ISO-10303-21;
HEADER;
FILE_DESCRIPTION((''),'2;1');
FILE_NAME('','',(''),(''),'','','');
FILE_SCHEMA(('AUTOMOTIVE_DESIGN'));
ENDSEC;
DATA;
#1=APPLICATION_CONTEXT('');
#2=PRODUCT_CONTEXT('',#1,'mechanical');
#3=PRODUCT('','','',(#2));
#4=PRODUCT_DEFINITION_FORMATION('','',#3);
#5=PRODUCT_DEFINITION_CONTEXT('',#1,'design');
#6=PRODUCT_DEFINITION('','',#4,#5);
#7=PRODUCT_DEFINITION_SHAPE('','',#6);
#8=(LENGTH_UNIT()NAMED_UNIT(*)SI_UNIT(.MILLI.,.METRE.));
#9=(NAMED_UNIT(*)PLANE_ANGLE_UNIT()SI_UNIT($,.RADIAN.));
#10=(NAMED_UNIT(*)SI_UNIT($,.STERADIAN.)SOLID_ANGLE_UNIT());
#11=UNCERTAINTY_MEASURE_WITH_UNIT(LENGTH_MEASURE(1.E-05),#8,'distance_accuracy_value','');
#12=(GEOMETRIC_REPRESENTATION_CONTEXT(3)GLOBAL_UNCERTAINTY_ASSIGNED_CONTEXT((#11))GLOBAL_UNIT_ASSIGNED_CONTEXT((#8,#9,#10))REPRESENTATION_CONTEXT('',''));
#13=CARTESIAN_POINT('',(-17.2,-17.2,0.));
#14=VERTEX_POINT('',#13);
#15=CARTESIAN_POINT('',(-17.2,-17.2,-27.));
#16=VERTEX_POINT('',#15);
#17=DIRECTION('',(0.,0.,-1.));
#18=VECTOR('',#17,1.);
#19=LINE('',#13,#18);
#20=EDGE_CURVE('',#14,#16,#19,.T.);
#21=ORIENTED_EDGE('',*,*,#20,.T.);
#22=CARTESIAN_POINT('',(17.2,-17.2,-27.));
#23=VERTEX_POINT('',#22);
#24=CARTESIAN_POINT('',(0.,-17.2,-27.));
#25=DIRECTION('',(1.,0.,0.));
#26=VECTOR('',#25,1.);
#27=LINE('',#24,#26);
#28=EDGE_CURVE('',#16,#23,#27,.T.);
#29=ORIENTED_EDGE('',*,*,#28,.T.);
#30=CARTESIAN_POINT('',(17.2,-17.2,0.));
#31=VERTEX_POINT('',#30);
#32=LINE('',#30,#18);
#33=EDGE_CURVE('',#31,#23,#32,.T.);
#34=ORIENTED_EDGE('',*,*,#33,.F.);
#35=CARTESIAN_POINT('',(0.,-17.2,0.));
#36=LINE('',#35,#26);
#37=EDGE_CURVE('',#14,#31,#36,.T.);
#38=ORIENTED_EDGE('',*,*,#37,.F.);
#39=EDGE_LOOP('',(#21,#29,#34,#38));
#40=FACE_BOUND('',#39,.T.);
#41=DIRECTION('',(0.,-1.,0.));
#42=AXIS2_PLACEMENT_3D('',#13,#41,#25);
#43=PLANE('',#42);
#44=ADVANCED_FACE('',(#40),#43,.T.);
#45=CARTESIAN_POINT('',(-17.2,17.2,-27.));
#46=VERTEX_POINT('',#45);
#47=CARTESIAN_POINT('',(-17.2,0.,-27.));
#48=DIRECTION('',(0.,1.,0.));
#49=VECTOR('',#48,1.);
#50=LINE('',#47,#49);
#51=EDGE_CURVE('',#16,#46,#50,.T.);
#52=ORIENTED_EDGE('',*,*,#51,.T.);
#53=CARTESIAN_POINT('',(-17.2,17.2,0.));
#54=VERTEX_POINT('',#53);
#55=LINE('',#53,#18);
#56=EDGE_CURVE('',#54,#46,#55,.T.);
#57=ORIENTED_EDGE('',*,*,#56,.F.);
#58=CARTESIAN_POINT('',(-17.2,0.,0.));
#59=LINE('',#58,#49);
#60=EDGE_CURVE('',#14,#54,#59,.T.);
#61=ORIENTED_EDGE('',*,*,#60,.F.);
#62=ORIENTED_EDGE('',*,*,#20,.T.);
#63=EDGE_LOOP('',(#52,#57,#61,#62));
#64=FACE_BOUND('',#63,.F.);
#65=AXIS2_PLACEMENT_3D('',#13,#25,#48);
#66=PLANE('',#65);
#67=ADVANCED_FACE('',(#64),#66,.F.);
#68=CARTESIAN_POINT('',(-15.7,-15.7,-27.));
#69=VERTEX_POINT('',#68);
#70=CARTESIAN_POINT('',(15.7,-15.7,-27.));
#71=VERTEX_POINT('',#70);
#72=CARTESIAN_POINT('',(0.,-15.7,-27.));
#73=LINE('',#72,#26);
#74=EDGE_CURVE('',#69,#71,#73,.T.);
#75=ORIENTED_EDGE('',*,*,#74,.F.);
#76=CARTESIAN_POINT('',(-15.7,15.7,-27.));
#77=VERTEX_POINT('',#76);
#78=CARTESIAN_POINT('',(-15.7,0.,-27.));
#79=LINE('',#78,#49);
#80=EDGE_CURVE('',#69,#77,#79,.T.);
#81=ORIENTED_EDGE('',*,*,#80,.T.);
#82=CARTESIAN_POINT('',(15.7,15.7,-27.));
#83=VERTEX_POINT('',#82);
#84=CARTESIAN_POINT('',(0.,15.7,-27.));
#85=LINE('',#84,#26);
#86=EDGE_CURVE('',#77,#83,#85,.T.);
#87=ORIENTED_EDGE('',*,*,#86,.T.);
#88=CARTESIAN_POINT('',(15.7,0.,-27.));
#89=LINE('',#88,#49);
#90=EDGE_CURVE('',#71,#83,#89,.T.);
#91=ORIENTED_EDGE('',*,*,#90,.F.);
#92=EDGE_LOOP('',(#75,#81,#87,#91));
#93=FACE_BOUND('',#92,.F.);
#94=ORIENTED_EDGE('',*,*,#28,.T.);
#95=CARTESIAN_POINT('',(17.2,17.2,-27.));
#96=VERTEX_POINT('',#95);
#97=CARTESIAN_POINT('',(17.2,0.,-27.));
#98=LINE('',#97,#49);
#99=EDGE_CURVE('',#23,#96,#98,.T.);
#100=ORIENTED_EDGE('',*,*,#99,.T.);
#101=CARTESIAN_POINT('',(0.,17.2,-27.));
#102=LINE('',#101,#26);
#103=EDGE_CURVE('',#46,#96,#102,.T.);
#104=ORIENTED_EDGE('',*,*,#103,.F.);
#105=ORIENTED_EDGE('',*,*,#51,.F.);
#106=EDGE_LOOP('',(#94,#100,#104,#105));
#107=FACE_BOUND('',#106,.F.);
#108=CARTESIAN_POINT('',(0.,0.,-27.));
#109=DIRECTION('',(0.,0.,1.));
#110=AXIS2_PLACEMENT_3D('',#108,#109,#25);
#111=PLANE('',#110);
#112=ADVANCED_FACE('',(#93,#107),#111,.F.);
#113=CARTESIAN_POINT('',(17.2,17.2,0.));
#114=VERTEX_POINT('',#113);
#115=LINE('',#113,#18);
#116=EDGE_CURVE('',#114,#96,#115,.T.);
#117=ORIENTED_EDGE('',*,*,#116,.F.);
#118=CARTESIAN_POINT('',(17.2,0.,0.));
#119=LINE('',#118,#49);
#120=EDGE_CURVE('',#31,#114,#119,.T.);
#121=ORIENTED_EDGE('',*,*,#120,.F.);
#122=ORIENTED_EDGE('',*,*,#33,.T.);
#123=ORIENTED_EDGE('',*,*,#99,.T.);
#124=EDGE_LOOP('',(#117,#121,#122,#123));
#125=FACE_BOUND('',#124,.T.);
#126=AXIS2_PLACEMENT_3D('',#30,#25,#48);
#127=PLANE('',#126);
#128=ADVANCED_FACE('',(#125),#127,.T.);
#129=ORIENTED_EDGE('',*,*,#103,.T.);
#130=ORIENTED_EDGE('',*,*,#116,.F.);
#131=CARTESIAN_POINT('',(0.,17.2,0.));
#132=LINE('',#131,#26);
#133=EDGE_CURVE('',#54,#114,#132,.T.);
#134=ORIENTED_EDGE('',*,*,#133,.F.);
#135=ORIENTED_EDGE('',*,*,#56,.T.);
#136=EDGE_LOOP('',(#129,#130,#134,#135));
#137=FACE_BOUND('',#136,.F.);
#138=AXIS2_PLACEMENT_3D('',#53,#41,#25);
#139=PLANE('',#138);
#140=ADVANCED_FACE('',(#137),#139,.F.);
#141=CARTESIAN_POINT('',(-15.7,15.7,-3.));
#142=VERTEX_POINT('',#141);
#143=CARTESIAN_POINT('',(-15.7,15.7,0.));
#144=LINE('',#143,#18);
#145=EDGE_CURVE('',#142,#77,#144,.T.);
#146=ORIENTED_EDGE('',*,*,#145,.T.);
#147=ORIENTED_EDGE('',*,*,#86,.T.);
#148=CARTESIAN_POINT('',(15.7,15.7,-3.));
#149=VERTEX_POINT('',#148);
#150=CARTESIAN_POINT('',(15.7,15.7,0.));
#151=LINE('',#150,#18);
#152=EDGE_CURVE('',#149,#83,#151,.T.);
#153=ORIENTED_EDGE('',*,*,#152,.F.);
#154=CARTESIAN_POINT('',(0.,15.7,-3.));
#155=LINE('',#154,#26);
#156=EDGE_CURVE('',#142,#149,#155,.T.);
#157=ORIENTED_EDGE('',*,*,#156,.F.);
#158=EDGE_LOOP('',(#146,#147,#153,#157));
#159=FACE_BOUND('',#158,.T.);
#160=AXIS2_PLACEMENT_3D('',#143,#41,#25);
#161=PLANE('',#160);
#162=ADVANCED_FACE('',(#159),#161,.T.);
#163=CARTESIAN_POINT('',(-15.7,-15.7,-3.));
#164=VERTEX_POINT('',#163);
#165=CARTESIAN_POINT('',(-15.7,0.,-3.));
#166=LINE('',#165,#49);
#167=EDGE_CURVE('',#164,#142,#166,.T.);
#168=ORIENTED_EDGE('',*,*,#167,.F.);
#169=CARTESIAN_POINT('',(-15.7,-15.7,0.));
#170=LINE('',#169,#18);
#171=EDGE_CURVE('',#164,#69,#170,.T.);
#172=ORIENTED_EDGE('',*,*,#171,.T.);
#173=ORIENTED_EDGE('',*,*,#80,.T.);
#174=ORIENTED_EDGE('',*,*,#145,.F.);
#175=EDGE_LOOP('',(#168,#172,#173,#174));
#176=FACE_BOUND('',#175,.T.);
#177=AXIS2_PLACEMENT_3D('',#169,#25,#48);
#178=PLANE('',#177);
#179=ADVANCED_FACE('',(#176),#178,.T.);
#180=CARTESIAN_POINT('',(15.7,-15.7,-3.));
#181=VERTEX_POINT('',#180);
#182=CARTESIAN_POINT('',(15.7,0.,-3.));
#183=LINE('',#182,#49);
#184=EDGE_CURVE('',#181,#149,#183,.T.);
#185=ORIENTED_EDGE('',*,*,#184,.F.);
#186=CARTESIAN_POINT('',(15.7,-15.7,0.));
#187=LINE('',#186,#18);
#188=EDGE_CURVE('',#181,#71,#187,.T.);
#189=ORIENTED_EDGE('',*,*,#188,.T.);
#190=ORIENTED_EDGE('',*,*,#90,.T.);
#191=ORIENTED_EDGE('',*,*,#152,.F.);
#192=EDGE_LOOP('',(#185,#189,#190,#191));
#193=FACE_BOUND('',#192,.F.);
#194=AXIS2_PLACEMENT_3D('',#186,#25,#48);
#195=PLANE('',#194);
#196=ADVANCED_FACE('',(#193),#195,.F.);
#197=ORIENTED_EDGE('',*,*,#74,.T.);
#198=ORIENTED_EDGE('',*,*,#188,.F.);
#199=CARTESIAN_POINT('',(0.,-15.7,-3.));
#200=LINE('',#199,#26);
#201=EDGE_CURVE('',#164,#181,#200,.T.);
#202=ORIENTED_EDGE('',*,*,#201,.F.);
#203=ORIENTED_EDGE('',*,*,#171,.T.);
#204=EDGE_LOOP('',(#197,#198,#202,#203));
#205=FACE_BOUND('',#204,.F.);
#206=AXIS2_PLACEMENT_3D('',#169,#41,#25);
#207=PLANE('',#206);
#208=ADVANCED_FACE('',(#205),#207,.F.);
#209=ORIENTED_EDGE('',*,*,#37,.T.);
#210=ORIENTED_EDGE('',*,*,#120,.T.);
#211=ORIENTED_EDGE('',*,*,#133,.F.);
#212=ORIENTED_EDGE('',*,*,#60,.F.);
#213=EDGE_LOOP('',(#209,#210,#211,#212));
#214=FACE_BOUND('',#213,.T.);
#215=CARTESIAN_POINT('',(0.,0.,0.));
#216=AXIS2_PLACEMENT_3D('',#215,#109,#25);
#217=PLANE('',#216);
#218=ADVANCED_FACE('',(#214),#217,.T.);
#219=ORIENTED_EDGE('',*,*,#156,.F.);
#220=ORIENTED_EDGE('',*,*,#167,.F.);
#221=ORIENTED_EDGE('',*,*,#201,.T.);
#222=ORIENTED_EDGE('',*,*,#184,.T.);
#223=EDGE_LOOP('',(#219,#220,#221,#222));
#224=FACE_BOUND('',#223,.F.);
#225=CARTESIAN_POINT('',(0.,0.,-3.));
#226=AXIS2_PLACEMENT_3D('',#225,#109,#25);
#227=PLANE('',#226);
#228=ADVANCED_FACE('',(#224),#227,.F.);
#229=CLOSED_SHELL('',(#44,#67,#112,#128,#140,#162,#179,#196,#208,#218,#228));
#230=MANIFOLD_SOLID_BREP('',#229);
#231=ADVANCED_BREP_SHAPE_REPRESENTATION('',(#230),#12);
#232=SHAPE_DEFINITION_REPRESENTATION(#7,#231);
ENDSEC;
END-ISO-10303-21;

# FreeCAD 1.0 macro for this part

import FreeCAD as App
import Part
import Sketcher

V = App.Vector
Q = App.Units.Quantity


def add_polygon(sketch, points):
    """Adds a closed chain of lines whose ends are joined by coincident constraints."""
    first, n = sketch.GeometryCount, len(points)
    for a, b in zip(points, points[1:] + points[:1]):
        sketch.addGeometry(Part.LineSegment(App.Vector(*a, 0), App.Vector(*b, 0)), False)
    for i in range(n):
        sketch.addConstraint(Sketcher.Constraint("Coincident", first + i, 2, first + (i + 1) % n, 1))

doc = App.newDocument("Part")
body = doc.addObject("PartDesign::Body", "Body")

# Sketch on XY plane
sketch1 = body.newObject("Sketcher::SketchObject", "Sketch")
sketch1.AttachmentSupport = (doc.getObject("XY_Plane"), [""])
sketch1.MapMode = "FlatFace"
add_polygon(sketch1, [(-17, 17), (-17, -17), (17, -17), (17, 17)])  # lines 0-3
add_polygon(sketch1, [(16, -16), (-16, -16), (-16, 16), (16, 16)])  # lines 4-7
sketch1.addConstraint([
    Sketcher.Constraint("Vertical", 0),
    Sketcher.Constraint("Horizontal", 1),
    Sketcher.Constraint("Vertical", 2),
    Sketcher.Constraint("Horizontal", 3),
    Sketcher.Constraint("Horizontal", 4),
    Sketcher.Constraint("Vertical", 5),
    Sketcher.Constraint("Horizontal", 6),
    Sketcher.Constraint("Vertical", 7),
    Sketcher.Constraint("Symmetric", 0, 2, 2, 2, -1, 1),
    Sketcher.Constraint("Symmetric", 4, 2, 6, 2, -1, 1),
    Sketcher.Constraint("Equal", 3, 0),
    Sketcher.Constraint("Equal", 6, 5),
    Sketcher.Constraint("DistanceX", 1, 1, 1, 2, Q("34.4 mm")),
    Sketcher.Constraint("DistanceX", 4, 2, 4, 1, Q("31.4 mm")),
])
pad1 = body.newObject("PartDesign::Pad", "Pad")
pad1.Profile = sketch1
pad1.Length = 27
pad1.Reversed = True

# Sketch on XY plane
sketch2 = body.newObject("Sketcher::SketchObject", "Sketch001")
sketch2.AttachmentSupport = (doc.getObject("XY_Plane"), [""])
sketch2.MapMode = "FlatFace"
add_polygon(sketch2, [(-16, 16), (-16, -16), (16, -16), (16, 16)])  # lines 0-3
sketch2.addConstraint([
    Sketcher.Constraint("Vertical", 0),
    Sketcher.Constraint("Horizontal", 1),
    Sketcher.Constraint("Vertical", 2),
    Sketcher.Constraint("Horizontal", 3),
    Sketcher.Constraint("Symmetric", 0, 2, 2, 2, -1, 1),
    Sketcher.Constraint("Equal", 3, 0),
    Sketcher.Constraint("DistanceX", 1, 1, 1, 2, Q("31.4 mm")),
])
pad2 = body.newObject("PartDesign::Pad", "Pad001")
pad2.Profile = sketch2
pad2.Length = 3
pad2.Reversed = True

doc.recompute()
